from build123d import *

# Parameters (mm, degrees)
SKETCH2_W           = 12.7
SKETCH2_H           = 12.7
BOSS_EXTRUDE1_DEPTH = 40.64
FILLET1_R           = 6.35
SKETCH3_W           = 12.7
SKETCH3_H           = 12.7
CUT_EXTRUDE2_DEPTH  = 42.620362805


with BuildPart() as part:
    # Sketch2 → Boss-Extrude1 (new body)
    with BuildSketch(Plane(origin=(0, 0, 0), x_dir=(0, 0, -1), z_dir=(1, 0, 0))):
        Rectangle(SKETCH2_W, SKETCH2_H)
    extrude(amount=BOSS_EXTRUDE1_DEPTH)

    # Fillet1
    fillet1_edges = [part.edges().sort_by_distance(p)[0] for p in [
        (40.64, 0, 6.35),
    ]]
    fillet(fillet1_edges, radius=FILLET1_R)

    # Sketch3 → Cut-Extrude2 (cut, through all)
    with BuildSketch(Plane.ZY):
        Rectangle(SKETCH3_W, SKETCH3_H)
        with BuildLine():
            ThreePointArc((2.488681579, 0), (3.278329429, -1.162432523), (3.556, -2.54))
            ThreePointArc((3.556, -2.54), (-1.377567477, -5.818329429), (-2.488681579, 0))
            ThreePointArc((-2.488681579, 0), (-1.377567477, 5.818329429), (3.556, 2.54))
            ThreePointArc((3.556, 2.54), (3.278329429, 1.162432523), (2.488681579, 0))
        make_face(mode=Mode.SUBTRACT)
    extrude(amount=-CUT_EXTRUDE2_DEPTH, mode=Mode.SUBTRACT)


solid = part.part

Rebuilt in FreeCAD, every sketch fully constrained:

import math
import FreeCAD as App
import Part
import Sketcher

V = App.Vector
Q = App.Units.Quantity


def edges_at(feature, points):
    """Names of the edges that pass closest to the given points."""
    edges = feature.Shape.Edges
    near = lambda p: min(range(len(edges)), key=lambda i: edges[i].distToShape(Part.Vertex(*p))[0])
    return sorted({f"Edge{near(p) + 1}" for p in points})


def add_polygon(sketch, points):
    """Adds a closed chain of lines whose ends are joined by coincident constraints."""
    first, n = sketch.GeometryCount, len(points)
    for a, b in zip(points, points[1:] + points[:1]):
        sketch.addGeometry(Part.LineSegment(App.Vector(*a, 0), App.Vector(*b, 0)), False)
    for i in range(n):
        sketch.addConstraint(Sketcher.Constraint("Coincident", first + i, 2, first + (i + 1) % n, 1))

doc = App.newDocument("Part")
body = doc.addObject("PartDesign::Body", "Body")

# Sketch on YZ plane
sketch1 = body.newObject("Sketcher::SketchObject", "Sketch")
sketch1.AttachmentSupport = (doc.getObject("YZ_Plane"), [""])
sketch1.MapMode = "FlatFace"
add_polygon(sketch1, [(6, 6), (-6, 6), (-6, -6), (6, -6)])  # lines 0-3
sketch1.addConstraint(Sketcher.Constraint("Horizontal", 0))
sketch1.addConstraint(Sketcher.Constraint("Vertical", 1))
sketch1.addConstraint(Sketcher.Constraint("Horizontal", 2))
sketch1.addConstraint(Sketcher.Constraint("Vertical", 3))
sketch1.addConstraint(Sketcher.Constraint("Symmetric", 0, 2, 2, 2, -1, 1))
sketch1.addConstraint(Sketcher.Constraint("Equal", 2, 1))
sketch1.addConstraint(Sketcher.Constraint("DistanceX", 0, 2, 0, 1, Q("0.5 in")))
pad1 = body.newObject("PartDesign::Pad", "Pad")
pad1.Profile = sketch1
pad1.Length = Q("1.6 in")
doc.recompute()

fillet = body.newObject("PartDesign::Fillet", "Fillet")
fillet.Base = (pad1, edges_at(pad1, [(40.64, 0, 6.35)]))
fillet.Radius = Q("0.25 in")

# Sketch on YZ plane
sketch2 = body.newObject("Sketcher::SketchObject", "Sketch001")
sketch2.AttachmentSupport = (doc.getObject("YZ_Plane"), [""])
sketch2.MapMode = "FlatFace"
add_polygon(sketch2, [(6.3, -6.3), (-6.3, -6.3), (-6.3, 6.3), (6.3, 6.3)])  # lines 0-3
sketch2.addGeometry(Part.ArcOfCircle(Part.Circle(V(2.5, 0, 0), V(0, 0, 1), 3.6), math.radians(90), math.radians(136)), False)  # 4
sketch2.addGeometry(Part.ArcOfCircle(Part.Circle(V(-2.5, 0, 0), V(0, 0, 1), 3.6), math.radians(44), math.radians(90)), False)  # 5
sketch2.addGeometry(Part.ArcOfCircle(Part.Circle(V(-2.5, 0, 0), V(0, 0, 1), 3.6), math.radians(90), math.radians(316)), False)  # 6
sketch2.addGeometry(Part.ArcOfCircle(Part.Circle(V(2.5, 0, 0), V(0, 0, 1), 3.6), math.radians(-136), math.radians(90)), False)  # 7
sketch2.addConstraint(Sketcher.Constraint("Coincident", 4, 2, 5, 1))
sketch2.addConstraint(Sketcher.Constraint("Tangent", 5, 2, 6, 1))
sketch2.addConstraint(Sketcher.Constraint("Coincident", 6, 2, 7, 1))
sketch2.addConstraint(Sketcher.Constraint("Tangent", 7, 2, 4, 1))
sketch2.addConstraint(Sketcher.Constraint("Horizontal", 0))
sketch2.addConstraint(Sketcher.Constraint("Vertical", 1))
sketch2.addConstraint(Sketcher.Constraint("Horizontal", 2))
sketch2.addConstraint(Sketcher.Constraint("Vertical", 3))
sketch2.addConstraint(Sketcher.Constraint("Equal", 4, 5))
sketch2.addConstraint(Sketcher.Constraint("Equal", 5, 6))
sketch2.addConstraint(Sketcher.Constraint("Equal", 6, 7))
sketch2.addConstraint(Sketcher.Constraint("Symmetric", 4, 3, 5, 3, -1, 1))
sketch2.addConstraint(Sketcher.Constraint("Symmetric", 0, 2, 2, 2, -1, 1))
sketch2.addConstraint(Sketcher.Constraint("Symmetric", 5, 2, 7, 2, -2))
sketch2.addConstraint(Sketcher.Constraint("Vertical", 6, 3, 5, 2))
sketch2.addConstraint(Sketcher.Constraint("Equal", 2, 1))
sketch2.addConstraint(Sketcher.Constraint("Radius", 4, Q("0.14 in")))
sketch2.addConstraint(Sketcher.Constraint("DistanceX", 0, 2, 0, 1, Q("0.5 in")))
sketch2.addConstraint(Sketcher.Constraint("DistanceX", -1, 1, 4, 3, Q("0.1 in")))
pocket1 = body.newObject("PartDesign::Pocket", "Pocket")
pocket1.Profile = sketch2
pocket1.Type = "ThroughAll"
pocket1.Reversed = True

doc.recompute()
